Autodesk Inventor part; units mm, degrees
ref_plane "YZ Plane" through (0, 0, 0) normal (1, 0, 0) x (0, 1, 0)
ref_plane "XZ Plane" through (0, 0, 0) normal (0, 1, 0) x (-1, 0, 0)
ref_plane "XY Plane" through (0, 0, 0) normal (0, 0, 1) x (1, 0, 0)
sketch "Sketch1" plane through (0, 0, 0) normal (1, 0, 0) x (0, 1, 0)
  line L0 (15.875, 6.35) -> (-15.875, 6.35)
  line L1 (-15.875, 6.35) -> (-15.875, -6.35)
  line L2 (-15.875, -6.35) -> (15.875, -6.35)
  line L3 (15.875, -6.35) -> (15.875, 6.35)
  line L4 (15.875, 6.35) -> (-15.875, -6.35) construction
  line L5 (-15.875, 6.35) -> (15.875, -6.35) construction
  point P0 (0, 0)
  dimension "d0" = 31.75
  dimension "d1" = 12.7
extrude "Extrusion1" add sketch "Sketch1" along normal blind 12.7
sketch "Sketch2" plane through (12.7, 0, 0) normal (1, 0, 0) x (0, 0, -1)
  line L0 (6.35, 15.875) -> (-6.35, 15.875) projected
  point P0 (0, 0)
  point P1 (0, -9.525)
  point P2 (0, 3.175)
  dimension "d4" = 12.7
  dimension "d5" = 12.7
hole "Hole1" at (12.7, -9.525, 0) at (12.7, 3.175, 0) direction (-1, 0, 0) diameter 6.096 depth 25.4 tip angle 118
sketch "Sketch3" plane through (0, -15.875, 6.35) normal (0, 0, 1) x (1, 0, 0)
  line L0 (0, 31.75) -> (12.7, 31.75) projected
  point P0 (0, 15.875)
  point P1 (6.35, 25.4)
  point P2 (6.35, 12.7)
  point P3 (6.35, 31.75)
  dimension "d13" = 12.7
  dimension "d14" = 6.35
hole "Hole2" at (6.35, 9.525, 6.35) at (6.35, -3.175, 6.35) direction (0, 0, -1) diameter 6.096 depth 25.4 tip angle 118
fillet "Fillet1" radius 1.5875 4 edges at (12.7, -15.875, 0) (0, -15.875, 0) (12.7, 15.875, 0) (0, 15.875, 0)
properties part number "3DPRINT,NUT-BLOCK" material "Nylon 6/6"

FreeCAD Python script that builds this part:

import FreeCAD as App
import Part
import Sketcher
from FreeCAD import Vector
Q = App.Units.Quantity


def edges_at(feature, points):
    """Names of the edges that pass closest to the given points."""
    edges = feature.Shape.Edges
    near = lambda p: min(range(len(edges)), key=lambda i: edges[i].distToShape(Part.Vertex(*p))[0])
    return sorted({f"Edge{near(p) + 1}" for p in points})

doc = App.newDocument("Part")
params = doc.addObject("Spreadsheet::Sheet", "Params")
for row, (alias, value) in enumerate([
    ("sketch1_height", "0.5 in"),
    ("sketch1_width", "1.25 in"),
    ("pad1_length", "0.5 in"),
    ("sketch2_diameter", "0.24 in"),
    ("hole_diameter", "0.24 in"),
    ("hole_depth", "1 in"),
    ("sketch3_diameter", "0.24 in"),
    ("hole2_diameter", "0.24 in"),
    ("hole2_depth", "1 in"),
    ("fillet_radius", "0.0625 in"),
], start=1):
    params.set(f"A{row}", alias)
    params.set(f"B{row}", "=" + value)
    params.setAlias(f"B{row}", alias)

body = doc.addObject("PartDesign::Body", "Body")

sketch1 = doc.addObject("Sketcher::SketchObject", "Sketch")
body.addObject(sketch1)
sketch1.AttachmentSupport = (doc.YZ_Plane, [""])
sketch1.MapMode = "FlatFace"
sketch1.addGeometry([
    Part.LineSegment(Vector(16, -6, 0), Vector(16, 6, 0)),
    Part.LineSegment(Vector(16, 6, 0), Vector(-16, 6, 0)),
    Part.LineSegment(Vector(-16, 6, 0), Vector(-16, -6, 0)),
    Part.LineSegment(Vector(-16, -6, 0), Vector(16, -6, 0)),
], False)
sketch1.addConstraint([
    Sketcher.Constraint("Coincident", 0, 2, 1, 1),
    Sketcher.Constraint("Coincident", 1, 2, 2, 1),
    Sketcher.Constraint("Coincident", 2, 2, 3, 1),
    Sketcher.Constraint("Coincident", 3, 2, 0, 1),
    Sketcher.Constraint("Vertical", 0),
    Sketcher.Constraint("Horizontal", 1),
    Sketcher.Constraint("Vertical", 2),
    Sketcher.Constraint("Horizontal", 3),
    Sketcher.Constraint("Symmetric", 0, 2, 2, 2, -1, 1),
    Sketcher.Constraint("DistanceY", 0, 1, 0, 2, Q("0.5 in")),
    Sketcher.Constraint("DistanceX", 1, 2, 1, 1, Q("1.25 in")),
])
sketch1.setExpression("Constraints[9]", "Params.sketch1_height")
sketch1.setExpression("Constraints[10]", "Params.sketch1_width")
pad1 = doc.addObject("PartDesign::Pad", "Pad")
body.addObject(pad1)
pad1.Profile = sketch1
pad1.setExpression("Length", "Params.pad1_length")

sketch2 = doc.addObject("Sketcher::SketchObject", "Sketch001")
body.addObject(sketch2)
sketch2.AttachmentSupport = (doc.YZ_Plane, [""])
sketch2.MapMode = "FlatFace"
sketch2.AttachmentOffset = App.Placement(Vector(0, 0, 0.5 * 25.4), App.Rotation())
sketch2.addGeometry([
    Part.Circle(Vector(-9.5, 0, 0), Vector(0, 0, 1), 3),
    Part.Circle(Vector(3.2, 0, 0), Vector(0, 0, 1), 3),
], False)
sketch2.addConstraint([
    Sketcher.Constraint("Equal", 0, 1),
    Sketcher.Constraint("PointOnObject", 0, 3, -1),
    Sketcher.Constraint("PointOnObject", 1, 3, -1),
    Sketcher.Constraint("Diameter", 0, Q("0.24 in")),
    Sketcher.Constraint("DistanceX", 0, 3, 1, 3, Q("0.5 in")),
    Sketcher.Constraint("DistanceX", 0, 3, -1, 1, Q("0.375 in")),
])
sketch2.setExpression("Constraints[3]", "Params.sketch2_diameter")
doc.recompute()
hole = doc.addObject("PartDesign::Hole", "Hole")
body.addObject(hole)
hole.Profile = sketch2
hole.ThreadType = "None"
hole.setExpression("Diameter", "Params.hole_diameter")
hole.DepthType = "Dimension"
hole.setExpression("Depth", "Params.hole_depth")
hole.DrillPoint = "Angled"
hole.DrillPointAngle = 118

sketch3 = doc.addObject("Sketcher::SketchObject", "Sketch002")
body.addObject(sketch3)
sketch3.AttachmentSupport = (doc.XY_Plane, [""])
sketch3.MapMode = "FlatFace"
sketch3.AttachmentOffset = App.Placement(Vector(0, 0, 0.25 * 25.4), App.Rotation())
sketch3.addGeometry([
    Part.Circle(Vector(6.3, 9.5, 0), Vector(0, 0, 1), 3),
    Part.Circle(Vector(6.3, -3.2, 0), Vector(0, 0, 1), 3),
], False)
sketch3.addConstraint([
    Sketcher.Constraint("Equal", 0, 1),
    Sketcher.Constraint("Vertical", 0, 3, 1, 3),
    Sketcher.Constraint("Diameter", 0, Q("0.24 in")),
    Sketcher.Constraint("DistanceY", 1, 3, 0, 3, Q("0.5 in")),
    Sketcher.Constraint("DistanceX", -1, 1, 0, 3, Q("0.25 in")),
    Sketcher.Constraint("DistanceY", -1, 1, 0, 3, Q("0.375 in")),
])
sketch3.setExpression("Constraints[2]", "Params.sketch3_diameter")
doc.recompute()
hole2 = doc.addObject("PartDesign::Hole", "Hole001")
body.addObject(hole2)
hole2.Profile = sketch3
hole2.ThreadType = "None"
hole2.setExpression("Diameter", "Params.hole2_diameter")
hole2.DepthType = "Dimension"
hole2.setExpression("Depth", "Params.hole2_depth")
hole2.DrillPoint = "Angled"
hole2.DrillPointAngle = 118
doc.recompute()

fillet = doc.addObject("PartDesign::Fillet", "Fillet")
body.addObject(fillet)
fillet.Base = (hole2, edges_at(hole2, [
    (12.7, -15.875, 0),
    (0, -15.875, 0),
    (12.7, 15.875, 0),
    (0, 15.875, 0),
]))
fillet.setExpression("Radius", "Params.fillet_radius")

doc.recompute()
